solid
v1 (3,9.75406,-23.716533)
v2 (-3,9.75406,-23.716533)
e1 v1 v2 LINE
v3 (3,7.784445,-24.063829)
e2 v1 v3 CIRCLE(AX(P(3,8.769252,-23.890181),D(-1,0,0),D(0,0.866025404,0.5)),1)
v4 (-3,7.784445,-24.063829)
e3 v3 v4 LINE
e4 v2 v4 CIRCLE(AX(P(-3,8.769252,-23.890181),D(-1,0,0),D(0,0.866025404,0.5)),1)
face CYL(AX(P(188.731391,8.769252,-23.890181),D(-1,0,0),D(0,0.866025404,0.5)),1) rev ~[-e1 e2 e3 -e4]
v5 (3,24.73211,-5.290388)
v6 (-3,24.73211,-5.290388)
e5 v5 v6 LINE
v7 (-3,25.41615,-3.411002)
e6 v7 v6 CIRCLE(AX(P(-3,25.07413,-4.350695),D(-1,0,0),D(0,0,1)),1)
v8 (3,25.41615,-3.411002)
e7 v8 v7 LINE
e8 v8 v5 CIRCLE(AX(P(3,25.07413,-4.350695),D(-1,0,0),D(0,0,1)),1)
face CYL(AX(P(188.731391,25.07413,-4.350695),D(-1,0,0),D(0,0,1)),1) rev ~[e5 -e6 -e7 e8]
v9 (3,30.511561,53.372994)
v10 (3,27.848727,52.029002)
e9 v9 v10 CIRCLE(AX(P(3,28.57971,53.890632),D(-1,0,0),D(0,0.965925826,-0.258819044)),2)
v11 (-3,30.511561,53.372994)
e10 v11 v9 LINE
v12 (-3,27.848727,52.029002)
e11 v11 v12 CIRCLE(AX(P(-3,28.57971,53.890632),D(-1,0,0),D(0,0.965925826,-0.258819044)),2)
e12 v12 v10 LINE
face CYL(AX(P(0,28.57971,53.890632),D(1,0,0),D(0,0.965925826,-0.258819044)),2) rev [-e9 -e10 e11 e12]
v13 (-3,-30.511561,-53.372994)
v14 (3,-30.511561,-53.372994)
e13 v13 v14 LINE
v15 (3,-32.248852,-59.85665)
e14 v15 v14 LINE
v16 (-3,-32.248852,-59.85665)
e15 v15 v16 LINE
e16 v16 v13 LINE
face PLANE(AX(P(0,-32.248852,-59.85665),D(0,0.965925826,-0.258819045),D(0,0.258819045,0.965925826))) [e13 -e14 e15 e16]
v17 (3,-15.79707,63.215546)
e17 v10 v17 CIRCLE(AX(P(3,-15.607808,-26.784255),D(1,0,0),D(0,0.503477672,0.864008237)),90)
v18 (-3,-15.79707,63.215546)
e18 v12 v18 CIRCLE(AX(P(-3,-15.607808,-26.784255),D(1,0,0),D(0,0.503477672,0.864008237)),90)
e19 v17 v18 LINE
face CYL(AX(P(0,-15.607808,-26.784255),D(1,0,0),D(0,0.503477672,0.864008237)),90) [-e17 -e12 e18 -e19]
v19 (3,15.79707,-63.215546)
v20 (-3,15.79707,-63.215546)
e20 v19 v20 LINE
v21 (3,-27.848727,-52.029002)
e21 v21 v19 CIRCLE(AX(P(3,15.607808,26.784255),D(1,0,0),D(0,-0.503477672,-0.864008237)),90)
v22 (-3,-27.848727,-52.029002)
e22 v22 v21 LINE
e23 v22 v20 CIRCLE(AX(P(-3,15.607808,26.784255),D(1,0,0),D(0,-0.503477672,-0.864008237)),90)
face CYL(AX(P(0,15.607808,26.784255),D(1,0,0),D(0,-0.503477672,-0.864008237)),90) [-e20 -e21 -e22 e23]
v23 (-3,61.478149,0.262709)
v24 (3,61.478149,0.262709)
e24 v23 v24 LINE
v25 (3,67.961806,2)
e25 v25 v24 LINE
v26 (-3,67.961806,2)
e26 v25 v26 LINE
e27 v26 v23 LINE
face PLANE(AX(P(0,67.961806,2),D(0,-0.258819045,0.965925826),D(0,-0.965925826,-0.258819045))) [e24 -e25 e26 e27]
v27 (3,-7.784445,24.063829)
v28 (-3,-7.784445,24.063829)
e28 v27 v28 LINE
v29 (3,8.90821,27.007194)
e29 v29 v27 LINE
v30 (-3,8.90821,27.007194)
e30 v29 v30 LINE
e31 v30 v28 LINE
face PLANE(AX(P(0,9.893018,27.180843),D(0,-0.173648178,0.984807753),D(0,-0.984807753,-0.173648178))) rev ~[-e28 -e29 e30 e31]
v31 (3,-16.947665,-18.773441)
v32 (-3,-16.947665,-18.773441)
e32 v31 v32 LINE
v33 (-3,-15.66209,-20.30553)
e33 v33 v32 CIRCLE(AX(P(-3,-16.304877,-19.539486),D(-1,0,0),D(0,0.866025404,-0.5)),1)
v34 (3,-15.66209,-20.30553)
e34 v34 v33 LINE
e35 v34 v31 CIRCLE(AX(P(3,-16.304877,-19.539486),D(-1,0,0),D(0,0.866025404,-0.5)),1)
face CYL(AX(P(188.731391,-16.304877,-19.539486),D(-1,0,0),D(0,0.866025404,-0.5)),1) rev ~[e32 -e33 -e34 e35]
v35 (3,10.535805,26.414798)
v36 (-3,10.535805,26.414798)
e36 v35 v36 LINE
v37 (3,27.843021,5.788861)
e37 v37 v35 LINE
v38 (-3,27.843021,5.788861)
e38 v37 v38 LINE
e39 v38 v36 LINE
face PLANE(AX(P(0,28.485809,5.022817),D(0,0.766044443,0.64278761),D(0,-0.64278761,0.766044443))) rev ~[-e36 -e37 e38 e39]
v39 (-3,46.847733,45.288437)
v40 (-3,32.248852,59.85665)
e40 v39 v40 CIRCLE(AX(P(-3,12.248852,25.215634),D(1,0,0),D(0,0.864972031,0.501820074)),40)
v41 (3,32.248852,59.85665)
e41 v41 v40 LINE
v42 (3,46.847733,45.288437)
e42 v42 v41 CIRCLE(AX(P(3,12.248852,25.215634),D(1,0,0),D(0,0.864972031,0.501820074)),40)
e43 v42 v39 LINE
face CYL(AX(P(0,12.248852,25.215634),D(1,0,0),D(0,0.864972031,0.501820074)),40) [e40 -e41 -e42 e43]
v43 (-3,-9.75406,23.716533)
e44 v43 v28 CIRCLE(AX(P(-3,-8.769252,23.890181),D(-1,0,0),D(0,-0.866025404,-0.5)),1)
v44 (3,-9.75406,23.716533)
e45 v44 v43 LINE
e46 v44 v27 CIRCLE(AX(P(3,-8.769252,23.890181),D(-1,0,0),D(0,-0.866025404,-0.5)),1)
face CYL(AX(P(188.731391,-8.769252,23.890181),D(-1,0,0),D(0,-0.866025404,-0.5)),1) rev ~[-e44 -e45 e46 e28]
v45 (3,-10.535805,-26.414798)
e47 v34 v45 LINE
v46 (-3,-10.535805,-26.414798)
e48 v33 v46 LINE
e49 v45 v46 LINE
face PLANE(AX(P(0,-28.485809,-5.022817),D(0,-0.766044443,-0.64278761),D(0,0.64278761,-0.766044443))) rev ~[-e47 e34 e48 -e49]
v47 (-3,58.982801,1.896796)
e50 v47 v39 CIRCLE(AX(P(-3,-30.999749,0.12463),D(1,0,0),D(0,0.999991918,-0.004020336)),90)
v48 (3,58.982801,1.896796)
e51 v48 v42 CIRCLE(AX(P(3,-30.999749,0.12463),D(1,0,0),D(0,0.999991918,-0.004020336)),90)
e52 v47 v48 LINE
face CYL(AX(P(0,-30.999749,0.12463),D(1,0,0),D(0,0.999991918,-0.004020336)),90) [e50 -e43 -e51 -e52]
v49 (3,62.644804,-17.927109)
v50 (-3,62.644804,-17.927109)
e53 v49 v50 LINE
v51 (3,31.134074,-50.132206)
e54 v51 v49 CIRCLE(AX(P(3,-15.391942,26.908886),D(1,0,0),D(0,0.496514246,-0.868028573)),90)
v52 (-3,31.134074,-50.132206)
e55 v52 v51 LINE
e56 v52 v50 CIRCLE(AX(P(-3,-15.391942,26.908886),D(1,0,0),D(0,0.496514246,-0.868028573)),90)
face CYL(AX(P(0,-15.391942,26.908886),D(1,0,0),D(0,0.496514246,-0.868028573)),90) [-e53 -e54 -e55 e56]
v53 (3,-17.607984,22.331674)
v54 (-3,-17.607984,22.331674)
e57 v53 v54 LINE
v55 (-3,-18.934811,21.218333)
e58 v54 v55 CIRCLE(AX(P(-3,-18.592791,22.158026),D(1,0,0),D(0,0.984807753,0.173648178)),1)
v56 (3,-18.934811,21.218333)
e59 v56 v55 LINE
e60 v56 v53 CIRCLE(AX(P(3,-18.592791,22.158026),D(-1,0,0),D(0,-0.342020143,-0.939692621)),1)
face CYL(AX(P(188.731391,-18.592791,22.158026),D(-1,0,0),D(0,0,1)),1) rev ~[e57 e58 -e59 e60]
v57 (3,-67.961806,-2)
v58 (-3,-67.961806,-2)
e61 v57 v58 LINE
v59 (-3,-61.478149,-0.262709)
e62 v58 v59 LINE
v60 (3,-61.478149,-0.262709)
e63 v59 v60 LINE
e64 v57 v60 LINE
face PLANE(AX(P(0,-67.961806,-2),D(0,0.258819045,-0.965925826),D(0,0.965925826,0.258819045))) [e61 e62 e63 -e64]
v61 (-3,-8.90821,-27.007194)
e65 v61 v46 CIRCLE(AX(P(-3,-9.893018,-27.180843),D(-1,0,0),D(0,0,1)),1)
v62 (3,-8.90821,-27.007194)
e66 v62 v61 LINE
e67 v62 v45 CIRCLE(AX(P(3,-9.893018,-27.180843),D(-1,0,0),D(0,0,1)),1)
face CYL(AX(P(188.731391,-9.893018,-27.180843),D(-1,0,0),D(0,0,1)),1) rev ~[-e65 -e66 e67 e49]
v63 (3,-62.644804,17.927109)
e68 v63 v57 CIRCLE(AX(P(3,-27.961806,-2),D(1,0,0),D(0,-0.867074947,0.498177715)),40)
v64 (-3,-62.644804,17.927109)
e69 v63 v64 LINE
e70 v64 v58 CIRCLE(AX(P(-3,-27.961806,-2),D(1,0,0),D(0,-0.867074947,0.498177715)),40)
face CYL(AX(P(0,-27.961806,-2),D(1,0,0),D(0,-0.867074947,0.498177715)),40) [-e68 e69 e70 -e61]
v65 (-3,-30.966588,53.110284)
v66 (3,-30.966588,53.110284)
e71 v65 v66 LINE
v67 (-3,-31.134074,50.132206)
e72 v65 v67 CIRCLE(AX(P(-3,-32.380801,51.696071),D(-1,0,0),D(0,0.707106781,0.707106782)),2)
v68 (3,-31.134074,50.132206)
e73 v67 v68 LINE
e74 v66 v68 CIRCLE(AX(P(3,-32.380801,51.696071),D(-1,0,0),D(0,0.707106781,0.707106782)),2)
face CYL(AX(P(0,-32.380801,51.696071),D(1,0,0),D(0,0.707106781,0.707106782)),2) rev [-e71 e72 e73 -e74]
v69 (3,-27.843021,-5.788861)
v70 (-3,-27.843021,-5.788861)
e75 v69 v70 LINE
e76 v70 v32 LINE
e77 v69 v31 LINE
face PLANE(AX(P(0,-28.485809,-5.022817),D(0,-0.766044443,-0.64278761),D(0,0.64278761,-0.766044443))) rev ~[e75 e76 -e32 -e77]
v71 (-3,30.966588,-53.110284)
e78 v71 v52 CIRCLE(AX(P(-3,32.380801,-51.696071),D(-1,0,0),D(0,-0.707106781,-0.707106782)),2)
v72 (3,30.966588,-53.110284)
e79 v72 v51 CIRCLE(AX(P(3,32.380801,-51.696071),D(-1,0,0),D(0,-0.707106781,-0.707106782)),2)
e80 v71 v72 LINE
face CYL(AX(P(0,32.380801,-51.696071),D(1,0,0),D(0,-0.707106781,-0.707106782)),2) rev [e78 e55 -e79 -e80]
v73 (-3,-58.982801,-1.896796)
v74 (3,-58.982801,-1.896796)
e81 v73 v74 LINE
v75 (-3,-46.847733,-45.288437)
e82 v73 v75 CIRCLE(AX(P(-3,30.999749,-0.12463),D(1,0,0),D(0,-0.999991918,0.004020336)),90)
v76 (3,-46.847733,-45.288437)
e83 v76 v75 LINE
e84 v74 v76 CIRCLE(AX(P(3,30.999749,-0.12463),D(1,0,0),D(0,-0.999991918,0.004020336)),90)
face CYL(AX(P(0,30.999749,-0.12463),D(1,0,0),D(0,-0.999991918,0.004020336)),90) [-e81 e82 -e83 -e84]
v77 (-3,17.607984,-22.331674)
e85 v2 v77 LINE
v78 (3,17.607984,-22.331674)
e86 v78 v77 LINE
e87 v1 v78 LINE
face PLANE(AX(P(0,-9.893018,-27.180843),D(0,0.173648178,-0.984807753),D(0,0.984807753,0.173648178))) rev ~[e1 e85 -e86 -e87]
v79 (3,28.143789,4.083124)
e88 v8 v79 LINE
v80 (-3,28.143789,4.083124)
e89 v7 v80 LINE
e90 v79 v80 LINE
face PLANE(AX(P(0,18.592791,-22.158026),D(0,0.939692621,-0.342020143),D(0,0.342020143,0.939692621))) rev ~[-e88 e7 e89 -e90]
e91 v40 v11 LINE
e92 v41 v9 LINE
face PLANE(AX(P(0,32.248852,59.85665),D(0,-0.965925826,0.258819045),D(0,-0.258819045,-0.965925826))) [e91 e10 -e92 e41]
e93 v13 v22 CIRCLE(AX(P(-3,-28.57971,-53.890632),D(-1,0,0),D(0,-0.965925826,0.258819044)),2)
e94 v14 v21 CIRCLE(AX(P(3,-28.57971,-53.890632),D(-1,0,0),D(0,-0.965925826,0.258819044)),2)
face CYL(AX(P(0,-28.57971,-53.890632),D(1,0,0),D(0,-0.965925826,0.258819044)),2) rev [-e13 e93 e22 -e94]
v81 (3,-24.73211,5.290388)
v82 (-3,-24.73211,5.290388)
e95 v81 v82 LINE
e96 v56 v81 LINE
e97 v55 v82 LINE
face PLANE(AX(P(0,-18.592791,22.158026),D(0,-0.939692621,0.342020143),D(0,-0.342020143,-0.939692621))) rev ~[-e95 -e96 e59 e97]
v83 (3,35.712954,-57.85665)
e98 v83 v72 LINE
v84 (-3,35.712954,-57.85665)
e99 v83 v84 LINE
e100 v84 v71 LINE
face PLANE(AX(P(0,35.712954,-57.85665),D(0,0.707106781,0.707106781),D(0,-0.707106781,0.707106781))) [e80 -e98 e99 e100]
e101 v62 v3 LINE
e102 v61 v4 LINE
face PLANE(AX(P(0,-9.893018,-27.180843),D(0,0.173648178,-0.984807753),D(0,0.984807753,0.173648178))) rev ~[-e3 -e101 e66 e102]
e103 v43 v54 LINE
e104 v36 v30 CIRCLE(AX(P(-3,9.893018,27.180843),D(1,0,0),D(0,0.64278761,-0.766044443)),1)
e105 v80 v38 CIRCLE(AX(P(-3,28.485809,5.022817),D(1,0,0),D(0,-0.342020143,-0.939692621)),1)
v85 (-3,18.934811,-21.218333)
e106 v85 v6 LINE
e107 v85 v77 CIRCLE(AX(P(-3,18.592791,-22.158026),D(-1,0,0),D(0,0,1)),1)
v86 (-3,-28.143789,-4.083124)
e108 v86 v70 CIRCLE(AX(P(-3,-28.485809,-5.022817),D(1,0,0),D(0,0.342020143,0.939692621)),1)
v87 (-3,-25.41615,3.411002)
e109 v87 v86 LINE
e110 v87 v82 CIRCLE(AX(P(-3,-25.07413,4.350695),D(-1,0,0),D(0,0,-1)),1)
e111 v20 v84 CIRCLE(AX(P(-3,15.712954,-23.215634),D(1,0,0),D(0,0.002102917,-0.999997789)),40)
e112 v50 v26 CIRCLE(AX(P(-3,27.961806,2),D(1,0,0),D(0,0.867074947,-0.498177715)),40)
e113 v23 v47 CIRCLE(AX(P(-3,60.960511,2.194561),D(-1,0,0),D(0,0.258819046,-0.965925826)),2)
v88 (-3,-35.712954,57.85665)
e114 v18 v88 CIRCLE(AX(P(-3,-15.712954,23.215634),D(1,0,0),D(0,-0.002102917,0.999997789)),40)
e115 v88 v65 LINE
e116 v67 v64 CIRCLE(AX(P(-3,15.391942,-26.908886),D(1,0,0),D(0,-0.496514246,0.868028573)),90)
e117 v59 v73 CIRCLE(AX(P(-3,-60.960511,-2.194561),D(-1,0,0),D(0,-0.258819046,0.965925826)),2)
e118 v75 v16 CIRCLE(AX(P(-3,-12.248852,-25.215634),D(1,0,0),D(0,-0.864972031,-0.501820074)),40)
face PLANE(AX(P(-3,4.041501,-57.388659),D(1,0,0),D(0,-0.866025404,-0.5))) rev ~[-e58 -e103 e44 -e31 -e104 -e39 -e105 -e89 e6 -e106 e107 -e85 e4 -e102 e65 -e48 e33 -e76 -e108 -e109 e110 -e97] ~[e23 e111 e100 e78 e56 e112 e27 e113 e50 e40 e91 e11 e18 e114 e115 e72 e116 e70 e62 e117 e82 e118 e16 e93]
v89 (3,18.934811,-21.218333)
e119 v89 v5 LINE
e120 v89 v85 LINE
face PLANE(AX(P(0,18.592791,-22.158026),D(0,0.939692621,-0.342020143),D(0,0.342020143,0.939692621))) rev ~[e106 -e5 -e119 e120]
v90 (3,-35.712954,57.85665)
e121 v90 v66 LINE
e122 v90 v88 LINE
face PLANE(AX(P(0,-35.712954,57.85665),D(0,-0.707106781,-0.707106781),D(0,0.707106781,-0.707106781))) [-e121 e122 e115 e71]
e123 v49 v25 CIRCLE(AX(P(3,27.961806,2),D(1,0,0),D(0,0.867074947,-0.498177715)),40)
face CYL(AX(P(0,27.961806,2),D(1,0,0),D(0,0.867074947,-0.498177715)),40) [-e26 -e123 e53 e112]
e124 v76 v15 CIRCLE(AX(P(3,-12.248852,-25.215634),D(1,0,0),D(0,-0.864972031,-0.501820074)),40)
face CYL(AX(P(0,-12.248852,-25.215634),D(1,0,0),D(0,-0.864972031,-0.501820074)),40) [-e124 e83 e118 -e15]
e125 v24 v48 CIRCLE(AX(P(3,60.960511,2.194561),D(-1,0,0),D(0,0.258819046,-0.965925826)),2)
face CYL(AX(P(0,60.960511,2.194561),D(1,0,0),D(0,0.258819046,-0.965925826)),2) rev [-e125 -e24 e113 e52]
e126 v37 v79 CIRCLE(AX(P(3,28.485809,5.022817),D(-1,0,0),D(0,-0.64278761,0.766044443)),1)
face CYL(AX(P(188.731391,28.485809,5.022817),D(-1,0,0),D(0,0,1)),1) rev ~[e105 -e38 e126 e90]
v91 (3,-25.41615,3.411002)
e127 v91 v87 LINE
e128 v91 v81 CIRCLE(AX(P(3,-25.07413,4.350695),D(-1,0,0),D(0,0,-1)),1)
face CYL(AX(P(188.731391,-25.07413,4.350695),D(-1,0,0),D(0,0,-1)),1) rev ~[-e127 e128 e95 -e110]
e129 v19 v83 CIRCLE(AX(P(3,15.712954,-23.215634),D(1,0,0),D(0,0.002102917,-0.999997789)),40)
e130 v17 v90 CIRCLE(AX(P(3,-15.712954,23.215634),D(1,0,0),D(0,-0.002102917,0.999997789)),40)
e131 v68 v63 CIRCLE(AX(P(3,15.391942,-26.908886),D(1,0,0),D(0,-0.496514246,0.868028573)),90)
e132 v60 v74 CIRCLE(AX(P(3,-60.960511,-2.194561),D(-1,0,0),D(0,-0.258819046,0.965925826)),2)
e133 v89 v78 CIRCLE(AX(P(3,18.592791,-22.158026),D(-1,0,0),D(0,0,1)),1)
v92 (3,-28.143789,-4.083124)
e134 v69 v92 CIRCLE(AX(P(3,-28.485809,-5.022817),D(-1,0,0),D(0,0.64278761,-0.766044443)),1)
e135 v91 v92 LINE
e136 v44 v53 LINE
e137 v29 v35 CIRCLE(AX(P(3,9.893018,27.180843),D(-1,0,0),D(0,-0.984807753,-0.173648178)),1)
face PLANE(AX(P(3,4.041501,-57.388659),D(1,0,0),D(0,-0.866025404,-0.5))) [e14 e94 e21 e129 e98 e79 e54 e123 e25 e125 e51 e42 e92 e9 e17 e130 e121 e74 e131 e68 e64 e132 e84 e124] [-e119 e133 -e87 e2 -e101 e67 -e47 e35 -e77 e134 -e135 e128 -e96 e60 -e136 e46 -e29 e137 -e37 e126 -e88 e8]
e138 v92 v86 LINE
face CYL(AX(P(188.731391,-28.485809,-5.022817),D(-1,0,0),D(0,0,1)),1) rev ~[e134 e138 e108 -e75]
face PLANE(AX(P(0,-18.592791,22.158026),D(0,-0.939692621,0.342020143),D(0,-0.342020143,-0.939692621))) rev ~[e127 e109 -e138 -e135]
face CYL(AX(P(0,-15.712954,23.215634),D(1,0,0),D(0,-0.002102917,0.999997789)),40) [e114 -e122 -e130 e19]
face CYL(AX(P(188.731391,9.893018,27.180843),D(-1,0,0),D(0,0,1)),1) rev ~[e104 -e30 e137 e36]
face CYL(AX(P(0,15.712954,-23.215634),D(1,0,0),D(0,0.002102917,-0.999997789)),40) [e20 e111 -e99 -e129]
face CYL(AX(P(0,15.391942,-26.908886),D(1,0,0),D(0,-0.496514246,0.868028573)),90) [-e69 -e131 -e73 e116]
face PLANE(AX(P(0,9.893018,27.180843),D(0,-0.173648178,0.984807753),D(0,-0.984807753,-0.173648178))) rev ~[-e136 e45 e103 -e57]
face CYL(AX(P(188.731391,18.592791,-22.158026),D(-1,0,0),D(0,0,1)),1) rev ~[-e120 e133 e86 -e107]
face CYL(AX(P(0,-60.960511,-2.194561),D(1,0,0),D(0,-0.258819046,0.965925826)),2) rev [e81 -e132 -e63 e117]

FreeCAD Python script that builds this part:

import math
import FreeCAD as App
import Part
import Sketcher
Q = App.Units.Quantity

doc = App.newDocument("Part")
body = doc.addObject("PartDesign::Body", "Body")

sketch1 = doc.addObject("Sketcher::SketchObject", "Sketch")
body.addObject(sketch1)
sketch1.AttachmentSupport = (doc.YZ_Plane, [""])
sketch1.MapMode = "FlatFace"
sketch1.addGeometry([
    Part.Circle(App.Vector(0, 0, 0), App.Vector(0, 0, 1), 59),
    Part.LineSegment(App.Vector(28, 5, 0), App.Vector(19, -22, 0)),
    Part.LineSegment(App.Vector(19, -22, 0), App.Vector(-10, -27, 0)),
    Part.LineSegment(App.Vector(-10, -27, 0), App.Vector(-28, -5, 0)),
    Part.LineSegment(App.Vector(-28, -5, 0), App.Vector(-19, 22, 0)),
    Part.LineSegment(App.Vector(-19, 22, 0), App.Vector(10, 27, 0)),
    Part.LineSegment(App.Vector(10, 27, 0), App.Vector(28, 5, 0)),
], False)
sketch1.addConstraint([
    Sketcher.Constraint("Coincident", 1, 2, 2, 1),
    Sketcher.Constraint("Coincident", 2, 2, 3, 1),
    Sketcher.Constraint("Coincident", 3, 2, 4, 1),
    Sketcher.Constraint("Coincident", 4, 2, 5, 1),
    Sketcher.Constraint("Coincident", 5, 2, 6, 1),
    Sketcher.Constraint("Coincident", 6, 2, 1, 1),
    Sketcher.Constraint("Coincident", 0, 3, -1, 1),
    Sketcher.Constraint("Symmetric", 1, 2, 4, 2, -1, 1),
    Sketcher.Constraint("Symmetric", 2, 2, 5, 2, -1, 1),
    Sketcher.Constraint("Symmetric", 3, 2, 6, 2, -1, 1),
    Sketcher.Constraint("Equal", 1, 2),
    Sketcher.Constraint("Equal", 2, 3),
    Sketcher.Constraint("Diameter", 0, 118.0),
    Sketcher.Constraint("Angle", 1, Q("-110 deg")),
    Sketcher.Constraint("Angle", 2, Q("-170 deg")),
    Sketcher.Constraint("Angle", 3, Q("130 deg")),
    Sketcher.Constraint("DistanceX", 3, 2, 1, 2, 47.0786),
])
pad1 = doc.addObject("PartDesign::Pad", "Pad")
body.addObject(pad1)
pad1.Profile = sketch1
pad1.Length = 6
pad1.Midplane = True

sketch2 = doc.addObject("Sketcher::SketchObject", "Sketch001")
body.addObject(sketch2)
sketch2.AttachmentSupport = (doc.YZ_Plane, [""])
sketch2.MapMode = "FlatFace"
sketch2.addGeometry([
    Part.LineSegment(App.Vector(68, 2, 0), App.Vector(61.5, 0.3, 0)),
    Part.ArcOfCircle(Part.Circle(App.Vector(61, 2.2, 0), App.Vector(0, 0, 1), 2), math.radians(-178), math.radians(-75)),
    Part.ArcOfCircle(Part.Circle(App.Vector(0, 0, 0), App.Vector(0, 0, 1), 59), math.radians(-60), math.radians(2)),
    Part.ArcOfCircle(Part.Circle(App.Vector(-15.4, 26.9, 0), App.Vector(0, 0, 1), 90), math.radians(-60), math.radians(-30)),
    Part.ArcOfCircle(Part.Circle(App.Vector(28, 2, 0), App.Vector(0, 0, 1), 40), math.radians(-30), math.radians(0)),
], False)
sketch2.addConstraint([
    Sketcher.Constraint("Tangent", 0, 2, 1, 2),
    Sketcher.Constraint("Tangent", 1, 1, 2, 2),
    Sketcher.Constraint("Tangent", 2, 1, 3, 1),
    Sketcher.Constraint("Tangent", 3, 2, 4, 1),
    Sketcher.Constraint("Coincident", 4, 2, 0, 1),
    Sketcher.Constraint("Coincident", 2, 3, -1, 1),
    Sketcher.Constraint("Radius", 1, 2.0),
    Sketcher.Constraint("Radius", 2, 59.0),
    Sketcher.Constraint("Radius", 3, 90.0),
    Sketcher.Constraint("Radius", 4, 40.0),
    Sketcher.Constraint("Angle", 0, Q("-165 deg")),
    Sketcher.Constraint("DistanceY", -1, 1, 4, 3, 2.0),
    Sketcher.Constraint("DistanceY", -1, 1, 4, 2, 2.0),
    Sketcher.Constraint("DistanceX", 4, 3, 1, 1, 31.0),
])
pad2 = doc.addObject("PartDesign::Pad", "Pad001")
body.addObject(pad2)
pad2.Profile = sketch2
pad2.Length = 6
pad2.Midplane = True
doc.recompute()

polarpattern = doc.addObject("PartDesign::PolarPattern", "PolarPattern")
body.addObject(polarpattern)
polarpattern.Originals = [pad2]
polarpattern.Axis = (doc.X_Axis, [""])
polarpattern.Angle = 360
polarpattern.Occurrences = 6
body.Tip = polarpattern

sketch3 = doc.addObject("Sketcher::SketchObject", "Sketch002")
body.addObject(sketch3)
sketch3.AttachmentSupport = (doc.YZ_Plane, [""])
sketch3.MapMode = "FlatFace"
sketch3.AttachmentOffset = App.Placement(App.Vector(0, 0, 3), App.Rotation())
sketch3.addGeometry([
    Part.Circle(App.Vector(28.5, 5, 0), App.Vector(0, 0, 1), 1),
    Part.Circle(App.Vector(18.6, -22.2, 0), App.Vector(0, 0, 1), 1),
    Part.Circle(App.Vector(-9.9, -27.2, 0), App.Vector(0, 0, 1), 1),
    Part.Circle(App.Vector(-28.5, -5, 0), App.Vector(0, 0, 1), 1),
    Part.Circle(App.Vector(-18.6, 22.2, 0), App.Vector(0, 0, 1), 1),
    Part.Circle(App.Vector(9.9, 27.2, 0), App.Vector(0, 0, 1), 1),
], False)
sketch3.addConstraint([
    Sketcher.Constraint("Equal", 0, 1),
    Sketcher.Constraint("Equal", 1, 2),
    Sketcher.Constraint("Equal", 2, 3),
    Sketcher.Constraint("Equal", 3, 4),
    Sketcher.Constraint("Equal", 4, 5),
    Sketcher.Constraint("Symmetric", 0, 3, 3, 3, -1, 1),
    Sketcher.Constraint("Symmetric", 1, 3, 4, 3, -1, 1),
    Sketcher.Constraint("Symmetric", 2, 3, 5, 3, -1, 1),
    Sketcher.Constraint("Diameter", 0, 2.0),
    Sketcher.Constraint("DistanceX", 3, 3, 1, 3, 47.0786),
    Sketcher.Constraint("DistanceX", -1, 1, 0, 3, 28.485809),
    Sketcher.Constraint("DistanceX", 2, 3, 1, 3, 28.485809),
    Sketcher.Constraint("DistanceY", 2, 3, 0, 3, 32.203659),
    Sketcher.Constraint("DistanceY", 1, 3, 3, 3, 17.135209),
    Sketcher.Constraint("DistanceY", 1, 3, 4, 3, 44.316052),
])
doc.recompute()
hole = doc.addObject("PartDesign::Hole", "Hole")
body.addObject(hole)
hole.Profile = sketch3
hole.ThreadType = "None"
hole.Diameter = 2
hole.DepthType = "ThroughAll"

sketch4 = doc.addObject("Sketcher::SketchObject", "Sketch003")
body.addObject(sketch4)
sketch4.AttachmentSupport = (doc.YZ_Plane, [""])
sketch4.MapMode = "FlatFace"
sketch4.AttachmentOffset = App.Placement(App.Vector(0, 0, 3), App.Rotation())
sketch4.addGeometry(Part.Circle(App.Vector(25.1, -4.4, 0), App.Vector(0, 0, 1), 1), False)
sketch4.addConstraint([
    Sketcher.Constraint("Diameter", 0, 2.0),
    Sketcher.Constraint("DistanceX", -1, 1, 0, 3, 25.07413),
    Sketcher.Constraint("DistanceY", 0, 3, -1, 1, 4.350695),
])
doc.recompute()
hole2 = doc.addObject("PartDesign::Hole", "Hole001")
body.addObject(hole2)
hole2.Profile = sketch4
hole2.ThreadType = "None"
hole2.Diameter = 2
hole2.DepthType = "ThroughAll"
doc.recompute()

polarpattern2 = doc.addObject("PartDesign::PolarPattern", "PolarPattern001")
body.addObject(polarpattern2)
polarpattern2.Originals = [hole2]
polarpattern2.Axis = (doc.X_Axis, [""])
polarpattern2.Angle = 240
polarpattern2.Occurrences = 5
polarpattern2.Reversed = True
body.Tip = polarpattern2

doc.recompute()
